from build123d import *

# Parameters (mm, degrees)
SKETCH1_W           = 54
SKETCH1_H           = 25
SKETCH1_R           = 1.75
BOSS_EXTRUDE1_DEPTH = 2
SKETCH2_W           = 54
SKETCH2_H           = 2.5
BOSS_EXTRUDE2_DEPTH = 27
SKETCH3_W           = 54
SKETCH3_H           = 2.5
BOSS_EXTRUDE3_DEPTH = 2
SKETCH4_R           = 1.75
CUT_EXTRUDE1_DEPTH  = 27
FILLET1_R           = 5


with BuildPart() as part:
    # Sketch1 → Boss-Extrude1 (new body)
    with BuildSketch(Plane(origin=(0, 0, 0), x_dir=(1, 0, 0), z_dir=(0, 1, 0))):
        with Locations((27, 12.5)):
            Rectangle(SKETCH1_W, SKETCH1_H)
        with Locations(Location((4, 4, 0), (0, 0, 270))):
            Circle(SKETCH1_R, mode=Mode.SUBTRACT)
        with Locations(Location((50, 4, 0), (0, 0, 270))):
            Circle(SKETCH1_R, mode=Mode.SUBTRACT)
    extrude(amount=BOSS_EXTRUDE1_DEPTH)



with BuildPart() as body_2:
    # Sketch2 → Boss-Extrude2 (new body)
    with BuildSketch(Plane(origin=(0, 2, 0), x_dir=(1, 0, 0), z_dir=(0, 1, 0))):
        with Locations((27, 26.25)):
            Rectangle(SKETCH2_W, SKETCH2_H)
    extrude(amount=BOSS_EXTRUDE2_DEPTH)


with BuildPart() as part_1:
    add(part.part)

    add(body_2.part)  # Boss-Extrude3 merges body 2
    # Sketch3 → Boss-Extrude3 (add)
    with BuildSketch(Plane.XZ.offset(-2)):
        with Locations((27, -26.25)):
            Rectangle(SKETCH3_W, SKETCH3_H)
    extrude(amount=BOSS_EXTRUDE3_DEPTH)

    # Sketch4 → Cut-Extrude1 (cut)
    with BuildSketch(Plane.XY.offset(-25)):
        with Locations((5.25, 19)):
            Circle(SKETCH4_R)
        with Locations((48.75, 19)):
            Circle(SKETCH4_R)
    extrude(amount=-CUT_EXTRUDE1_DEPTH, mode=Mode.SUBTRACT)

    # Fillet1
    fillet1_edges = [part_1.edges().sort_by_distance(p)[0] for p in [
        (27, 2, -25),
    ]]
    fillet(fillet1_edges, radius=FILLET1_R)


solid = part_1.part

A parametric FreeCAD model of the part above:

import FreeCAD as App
import Part
import Sketcher

V = App.Vector


def edges_at(feature, points):
    """Names of the edges that pass closest to the given points."""
    edges = feature.Shape.Edges
    near = lambda p: min(range(len(edges)), key=lambda i: edges[i].distToShape(Part.Vertex(*p))[0])
    return sorted({f"Edge{near(p) + 1}" for p in points})


def add_polygon(sketch, points):
    """Adds a closed chain of lines whose ends are joined by coincident constraints."""
    first, n = sketch.GeometryCount, len(points)
    for a, b in zip(points, points[1:] + points[:1]):
        sketch.addGeometry(Part.LineSegment(App.Vector(*a, 0), App.Vector(*b, 0)), False)
    for i in range(n):
        sketch.addConstraint(Sketcher.Constraint("Coincident", first + i, 2, first + (i + 1) % n, 1))

doc = App.newDocument("Part")
body = doc.addObject("PartDesign::Body", "Body")

# Sketch on XZ plane
sketch1 = doc.addObject("Sketcher::SketchObject", "Sketch")
body.addObject(sketch1)
sketch1.AttachmentSupport = (doc.XZ_Plane, [""])
sketch1.MapMode = "FlatFace"
add_polygon(sketch1, [(0, -25), (0, 0), (54, 0), (54, -25)])  # lines 0-3
sketch1.addGeometry(Part.Circle(V(4, -4, 0), V(0, 0, 1), 1.75), False)  # 4
sketch1.addGeometry(Part.Circle(V(50, -4, 0), V(0, 0, 1), 1.75), False)  # 5
sketch1.addConstraint([
    Sketcher.Constraint("Vertical", 0),
    Sketcher.Constraint("Horizontal", 1),
    Sketcher.Constraint("Vertical", 2),
    Sketcher.Constraint("Horizontal", 3),
    Sketcher.Constraint("Coincident", 0, 2, -1, 1),
    Sketcher.Constraint("Equal", 4, 5),
    Sketcher.Constraint("Horizontal", 4, 3, 5, 3),
    Sketcher.Constraint("Diameter", 4, 3.5),
    Sketcher.Constraint("DistanceX", 1, 1, 1, 2, 54.0),
    Sketcher.Constraint("DistanceY", 0, 1, 0, 2, 25.0),
    Sketcher.Constraint("DistanceX", -1, 1, 4, 3, 4.0),
    Sketcher.Constraint("DistanceY", 4, 3, -1, 1, 4.0),
    Sketcher.Constraint("DistanceX", -1, 1, 5, 3, 50.0),
])
pad1 = doc.addObject("PartDesign::Pad", "Pad")
body.addObject(pad1)
pad1.Profile = sketch1
pad1.Length = 2
pad1.Reversed = True
body2 = doc.addObject("PartDesign::Body", "Body001")

# Sketch on XZ plane
sketch2 = doc.addObject("Sketcher::SketchObject", "Sketch001")
body2.addObject(sketch2)
sketch2.AttachmentSupport = (doc.getObject("XZ_Plane001"), [""])
sketch2.MapMode = "FlatFace"
sketch2.AttachmentOffset = App.Placement(V(0, 0, -2), App.Rotation())
add_polygon(sketch2, [(0, -27.5), (0, -25), (54, -25), (54, -27.5)])  # lines 0-3
sketch2.addConstraint([
    Sketcher.Constraint("Vertical", 0),
    Sketcher.Constraint("Horizontal", 1),
    Sketcher.Constraint("Vertical", 2),
    Sketcher.Constraint("Horizontal", 3),
    Sketcher.Constraint("PointOnObject", 0, 2, -2),
    Sketcher.Constraint("DistanceX", 1, 1, 1, 2, 54.0),
    Sketcher.Constraint("DistanceY", 0, 1, 0, 2, 2.5),
    Sketcher.Constraint("DistanceY", 0, 2, -1, 1, 25.0),
])
pad2 = doc.addObject("PartDesign::Pad", "Pad001")
body2.addObject(pad2)
pad2.Profile = sketch2
pad2.Length = 27
pad2.Reversed = True
body.AllowCompound = True
doc.recompute()

boolean = doc.addObject("PartDesign::Boolean", "Boolean")
body.addObject(boolean)
boolean.Type = "Fuse"
boolean.addObjects([body2])

# Sketch on XZ plane
sketch3 = doc.addObject("Sketcher::SketchObject", "Sketch002")
body.addObject(sketch3)
sketch3.AttachmentSupport = (doc.XZ_Plane, [""])
sketch3.MapMode = "FlatFace"
sketch3.AttachmentOffset = App.Placement(V(0, 0, -2), App.Rotation())
add_polygon(sketch3, [(0, -25), (0, -27.5), (54, -27.5), (54, -25)])  # lines 0-3
sketch3.addConstraint([
    Sketcher.Constraint("Vertical", 0),
    Sketcher.Constraint("Horizontal", 1),
    Sketcher.Constraint("Vertical", 2),
    Sketcher.Constraint("Horizontal", 3),
    Sketcher.Constraint("PointOnObject", 0, 2, -2),
    Sketcher.Constraint("DistanceX", 1, 1, 1, 2, 54.0),
    Sketcher.Constraint("DistanceY", 0, 2, 0, 1, 2.5),
    Sketcher.Constraint("DistanceY", 2, 2, -1, 1, 25.0),
])
pad3 = doc.addObject("PartDesign::Pad", "Pad002")
body.addObject(pad3)
pad3.Profile = sketch3
pad3.Length = 2

# Sketch on XY plane
sketch4 = doc.addObject("Sketcher::SketchObject", "Sketch003")
body.addObject(sketch4)
sketch4.AttachmentSupport = (doc.XY_Plane, [""])
sketch4.MapMode = "FlatFace"
sketch4.AttachmentOffset = App.Placement(V(0, 0, -25), App.Rotation())
sketch4.addGeometry([
    Part.Circle(V(5.25, 19, 0), V(0, 0, 1), 1.75),
    Part.Circle(V(48.75, 19, 0), V(0, 0, 1), 1.75),
], False)
sketch4.addConstraint([
    Sketcher.Constraint("Equal", 0, 1),
    Sketcher.Constraint("Horizontal", 0, 3, 1, 3),
    Sketcher.Constraint("Diameter", 0, 3.5),
    Sketcher.Constraint("DistanceY", -1, 1, 0, 3, 19.0),
    Sketcher.Constraint("DistanceX", 0, 3, 1, 3, 43.5),
    Sketcher.Constraint("DistanceX", -1, 1, 0, 3, 5.25),
])
pocket1 = doc.addObject("PartDesign::Pocket", "Pocket")
body.addObject(pocket1)
pocket1.Profile = sketch4
pocket1.Length = 27
doc.recompute()

fillet = doc.addObject("PartDesign::Fillet", "Fillet")
body.addObject(fillet)
fillet.Base = (pocket1, edges_at(pocket1, [(27, 2, -25)]))
fillet.Radius = 5

doc.recompute()
